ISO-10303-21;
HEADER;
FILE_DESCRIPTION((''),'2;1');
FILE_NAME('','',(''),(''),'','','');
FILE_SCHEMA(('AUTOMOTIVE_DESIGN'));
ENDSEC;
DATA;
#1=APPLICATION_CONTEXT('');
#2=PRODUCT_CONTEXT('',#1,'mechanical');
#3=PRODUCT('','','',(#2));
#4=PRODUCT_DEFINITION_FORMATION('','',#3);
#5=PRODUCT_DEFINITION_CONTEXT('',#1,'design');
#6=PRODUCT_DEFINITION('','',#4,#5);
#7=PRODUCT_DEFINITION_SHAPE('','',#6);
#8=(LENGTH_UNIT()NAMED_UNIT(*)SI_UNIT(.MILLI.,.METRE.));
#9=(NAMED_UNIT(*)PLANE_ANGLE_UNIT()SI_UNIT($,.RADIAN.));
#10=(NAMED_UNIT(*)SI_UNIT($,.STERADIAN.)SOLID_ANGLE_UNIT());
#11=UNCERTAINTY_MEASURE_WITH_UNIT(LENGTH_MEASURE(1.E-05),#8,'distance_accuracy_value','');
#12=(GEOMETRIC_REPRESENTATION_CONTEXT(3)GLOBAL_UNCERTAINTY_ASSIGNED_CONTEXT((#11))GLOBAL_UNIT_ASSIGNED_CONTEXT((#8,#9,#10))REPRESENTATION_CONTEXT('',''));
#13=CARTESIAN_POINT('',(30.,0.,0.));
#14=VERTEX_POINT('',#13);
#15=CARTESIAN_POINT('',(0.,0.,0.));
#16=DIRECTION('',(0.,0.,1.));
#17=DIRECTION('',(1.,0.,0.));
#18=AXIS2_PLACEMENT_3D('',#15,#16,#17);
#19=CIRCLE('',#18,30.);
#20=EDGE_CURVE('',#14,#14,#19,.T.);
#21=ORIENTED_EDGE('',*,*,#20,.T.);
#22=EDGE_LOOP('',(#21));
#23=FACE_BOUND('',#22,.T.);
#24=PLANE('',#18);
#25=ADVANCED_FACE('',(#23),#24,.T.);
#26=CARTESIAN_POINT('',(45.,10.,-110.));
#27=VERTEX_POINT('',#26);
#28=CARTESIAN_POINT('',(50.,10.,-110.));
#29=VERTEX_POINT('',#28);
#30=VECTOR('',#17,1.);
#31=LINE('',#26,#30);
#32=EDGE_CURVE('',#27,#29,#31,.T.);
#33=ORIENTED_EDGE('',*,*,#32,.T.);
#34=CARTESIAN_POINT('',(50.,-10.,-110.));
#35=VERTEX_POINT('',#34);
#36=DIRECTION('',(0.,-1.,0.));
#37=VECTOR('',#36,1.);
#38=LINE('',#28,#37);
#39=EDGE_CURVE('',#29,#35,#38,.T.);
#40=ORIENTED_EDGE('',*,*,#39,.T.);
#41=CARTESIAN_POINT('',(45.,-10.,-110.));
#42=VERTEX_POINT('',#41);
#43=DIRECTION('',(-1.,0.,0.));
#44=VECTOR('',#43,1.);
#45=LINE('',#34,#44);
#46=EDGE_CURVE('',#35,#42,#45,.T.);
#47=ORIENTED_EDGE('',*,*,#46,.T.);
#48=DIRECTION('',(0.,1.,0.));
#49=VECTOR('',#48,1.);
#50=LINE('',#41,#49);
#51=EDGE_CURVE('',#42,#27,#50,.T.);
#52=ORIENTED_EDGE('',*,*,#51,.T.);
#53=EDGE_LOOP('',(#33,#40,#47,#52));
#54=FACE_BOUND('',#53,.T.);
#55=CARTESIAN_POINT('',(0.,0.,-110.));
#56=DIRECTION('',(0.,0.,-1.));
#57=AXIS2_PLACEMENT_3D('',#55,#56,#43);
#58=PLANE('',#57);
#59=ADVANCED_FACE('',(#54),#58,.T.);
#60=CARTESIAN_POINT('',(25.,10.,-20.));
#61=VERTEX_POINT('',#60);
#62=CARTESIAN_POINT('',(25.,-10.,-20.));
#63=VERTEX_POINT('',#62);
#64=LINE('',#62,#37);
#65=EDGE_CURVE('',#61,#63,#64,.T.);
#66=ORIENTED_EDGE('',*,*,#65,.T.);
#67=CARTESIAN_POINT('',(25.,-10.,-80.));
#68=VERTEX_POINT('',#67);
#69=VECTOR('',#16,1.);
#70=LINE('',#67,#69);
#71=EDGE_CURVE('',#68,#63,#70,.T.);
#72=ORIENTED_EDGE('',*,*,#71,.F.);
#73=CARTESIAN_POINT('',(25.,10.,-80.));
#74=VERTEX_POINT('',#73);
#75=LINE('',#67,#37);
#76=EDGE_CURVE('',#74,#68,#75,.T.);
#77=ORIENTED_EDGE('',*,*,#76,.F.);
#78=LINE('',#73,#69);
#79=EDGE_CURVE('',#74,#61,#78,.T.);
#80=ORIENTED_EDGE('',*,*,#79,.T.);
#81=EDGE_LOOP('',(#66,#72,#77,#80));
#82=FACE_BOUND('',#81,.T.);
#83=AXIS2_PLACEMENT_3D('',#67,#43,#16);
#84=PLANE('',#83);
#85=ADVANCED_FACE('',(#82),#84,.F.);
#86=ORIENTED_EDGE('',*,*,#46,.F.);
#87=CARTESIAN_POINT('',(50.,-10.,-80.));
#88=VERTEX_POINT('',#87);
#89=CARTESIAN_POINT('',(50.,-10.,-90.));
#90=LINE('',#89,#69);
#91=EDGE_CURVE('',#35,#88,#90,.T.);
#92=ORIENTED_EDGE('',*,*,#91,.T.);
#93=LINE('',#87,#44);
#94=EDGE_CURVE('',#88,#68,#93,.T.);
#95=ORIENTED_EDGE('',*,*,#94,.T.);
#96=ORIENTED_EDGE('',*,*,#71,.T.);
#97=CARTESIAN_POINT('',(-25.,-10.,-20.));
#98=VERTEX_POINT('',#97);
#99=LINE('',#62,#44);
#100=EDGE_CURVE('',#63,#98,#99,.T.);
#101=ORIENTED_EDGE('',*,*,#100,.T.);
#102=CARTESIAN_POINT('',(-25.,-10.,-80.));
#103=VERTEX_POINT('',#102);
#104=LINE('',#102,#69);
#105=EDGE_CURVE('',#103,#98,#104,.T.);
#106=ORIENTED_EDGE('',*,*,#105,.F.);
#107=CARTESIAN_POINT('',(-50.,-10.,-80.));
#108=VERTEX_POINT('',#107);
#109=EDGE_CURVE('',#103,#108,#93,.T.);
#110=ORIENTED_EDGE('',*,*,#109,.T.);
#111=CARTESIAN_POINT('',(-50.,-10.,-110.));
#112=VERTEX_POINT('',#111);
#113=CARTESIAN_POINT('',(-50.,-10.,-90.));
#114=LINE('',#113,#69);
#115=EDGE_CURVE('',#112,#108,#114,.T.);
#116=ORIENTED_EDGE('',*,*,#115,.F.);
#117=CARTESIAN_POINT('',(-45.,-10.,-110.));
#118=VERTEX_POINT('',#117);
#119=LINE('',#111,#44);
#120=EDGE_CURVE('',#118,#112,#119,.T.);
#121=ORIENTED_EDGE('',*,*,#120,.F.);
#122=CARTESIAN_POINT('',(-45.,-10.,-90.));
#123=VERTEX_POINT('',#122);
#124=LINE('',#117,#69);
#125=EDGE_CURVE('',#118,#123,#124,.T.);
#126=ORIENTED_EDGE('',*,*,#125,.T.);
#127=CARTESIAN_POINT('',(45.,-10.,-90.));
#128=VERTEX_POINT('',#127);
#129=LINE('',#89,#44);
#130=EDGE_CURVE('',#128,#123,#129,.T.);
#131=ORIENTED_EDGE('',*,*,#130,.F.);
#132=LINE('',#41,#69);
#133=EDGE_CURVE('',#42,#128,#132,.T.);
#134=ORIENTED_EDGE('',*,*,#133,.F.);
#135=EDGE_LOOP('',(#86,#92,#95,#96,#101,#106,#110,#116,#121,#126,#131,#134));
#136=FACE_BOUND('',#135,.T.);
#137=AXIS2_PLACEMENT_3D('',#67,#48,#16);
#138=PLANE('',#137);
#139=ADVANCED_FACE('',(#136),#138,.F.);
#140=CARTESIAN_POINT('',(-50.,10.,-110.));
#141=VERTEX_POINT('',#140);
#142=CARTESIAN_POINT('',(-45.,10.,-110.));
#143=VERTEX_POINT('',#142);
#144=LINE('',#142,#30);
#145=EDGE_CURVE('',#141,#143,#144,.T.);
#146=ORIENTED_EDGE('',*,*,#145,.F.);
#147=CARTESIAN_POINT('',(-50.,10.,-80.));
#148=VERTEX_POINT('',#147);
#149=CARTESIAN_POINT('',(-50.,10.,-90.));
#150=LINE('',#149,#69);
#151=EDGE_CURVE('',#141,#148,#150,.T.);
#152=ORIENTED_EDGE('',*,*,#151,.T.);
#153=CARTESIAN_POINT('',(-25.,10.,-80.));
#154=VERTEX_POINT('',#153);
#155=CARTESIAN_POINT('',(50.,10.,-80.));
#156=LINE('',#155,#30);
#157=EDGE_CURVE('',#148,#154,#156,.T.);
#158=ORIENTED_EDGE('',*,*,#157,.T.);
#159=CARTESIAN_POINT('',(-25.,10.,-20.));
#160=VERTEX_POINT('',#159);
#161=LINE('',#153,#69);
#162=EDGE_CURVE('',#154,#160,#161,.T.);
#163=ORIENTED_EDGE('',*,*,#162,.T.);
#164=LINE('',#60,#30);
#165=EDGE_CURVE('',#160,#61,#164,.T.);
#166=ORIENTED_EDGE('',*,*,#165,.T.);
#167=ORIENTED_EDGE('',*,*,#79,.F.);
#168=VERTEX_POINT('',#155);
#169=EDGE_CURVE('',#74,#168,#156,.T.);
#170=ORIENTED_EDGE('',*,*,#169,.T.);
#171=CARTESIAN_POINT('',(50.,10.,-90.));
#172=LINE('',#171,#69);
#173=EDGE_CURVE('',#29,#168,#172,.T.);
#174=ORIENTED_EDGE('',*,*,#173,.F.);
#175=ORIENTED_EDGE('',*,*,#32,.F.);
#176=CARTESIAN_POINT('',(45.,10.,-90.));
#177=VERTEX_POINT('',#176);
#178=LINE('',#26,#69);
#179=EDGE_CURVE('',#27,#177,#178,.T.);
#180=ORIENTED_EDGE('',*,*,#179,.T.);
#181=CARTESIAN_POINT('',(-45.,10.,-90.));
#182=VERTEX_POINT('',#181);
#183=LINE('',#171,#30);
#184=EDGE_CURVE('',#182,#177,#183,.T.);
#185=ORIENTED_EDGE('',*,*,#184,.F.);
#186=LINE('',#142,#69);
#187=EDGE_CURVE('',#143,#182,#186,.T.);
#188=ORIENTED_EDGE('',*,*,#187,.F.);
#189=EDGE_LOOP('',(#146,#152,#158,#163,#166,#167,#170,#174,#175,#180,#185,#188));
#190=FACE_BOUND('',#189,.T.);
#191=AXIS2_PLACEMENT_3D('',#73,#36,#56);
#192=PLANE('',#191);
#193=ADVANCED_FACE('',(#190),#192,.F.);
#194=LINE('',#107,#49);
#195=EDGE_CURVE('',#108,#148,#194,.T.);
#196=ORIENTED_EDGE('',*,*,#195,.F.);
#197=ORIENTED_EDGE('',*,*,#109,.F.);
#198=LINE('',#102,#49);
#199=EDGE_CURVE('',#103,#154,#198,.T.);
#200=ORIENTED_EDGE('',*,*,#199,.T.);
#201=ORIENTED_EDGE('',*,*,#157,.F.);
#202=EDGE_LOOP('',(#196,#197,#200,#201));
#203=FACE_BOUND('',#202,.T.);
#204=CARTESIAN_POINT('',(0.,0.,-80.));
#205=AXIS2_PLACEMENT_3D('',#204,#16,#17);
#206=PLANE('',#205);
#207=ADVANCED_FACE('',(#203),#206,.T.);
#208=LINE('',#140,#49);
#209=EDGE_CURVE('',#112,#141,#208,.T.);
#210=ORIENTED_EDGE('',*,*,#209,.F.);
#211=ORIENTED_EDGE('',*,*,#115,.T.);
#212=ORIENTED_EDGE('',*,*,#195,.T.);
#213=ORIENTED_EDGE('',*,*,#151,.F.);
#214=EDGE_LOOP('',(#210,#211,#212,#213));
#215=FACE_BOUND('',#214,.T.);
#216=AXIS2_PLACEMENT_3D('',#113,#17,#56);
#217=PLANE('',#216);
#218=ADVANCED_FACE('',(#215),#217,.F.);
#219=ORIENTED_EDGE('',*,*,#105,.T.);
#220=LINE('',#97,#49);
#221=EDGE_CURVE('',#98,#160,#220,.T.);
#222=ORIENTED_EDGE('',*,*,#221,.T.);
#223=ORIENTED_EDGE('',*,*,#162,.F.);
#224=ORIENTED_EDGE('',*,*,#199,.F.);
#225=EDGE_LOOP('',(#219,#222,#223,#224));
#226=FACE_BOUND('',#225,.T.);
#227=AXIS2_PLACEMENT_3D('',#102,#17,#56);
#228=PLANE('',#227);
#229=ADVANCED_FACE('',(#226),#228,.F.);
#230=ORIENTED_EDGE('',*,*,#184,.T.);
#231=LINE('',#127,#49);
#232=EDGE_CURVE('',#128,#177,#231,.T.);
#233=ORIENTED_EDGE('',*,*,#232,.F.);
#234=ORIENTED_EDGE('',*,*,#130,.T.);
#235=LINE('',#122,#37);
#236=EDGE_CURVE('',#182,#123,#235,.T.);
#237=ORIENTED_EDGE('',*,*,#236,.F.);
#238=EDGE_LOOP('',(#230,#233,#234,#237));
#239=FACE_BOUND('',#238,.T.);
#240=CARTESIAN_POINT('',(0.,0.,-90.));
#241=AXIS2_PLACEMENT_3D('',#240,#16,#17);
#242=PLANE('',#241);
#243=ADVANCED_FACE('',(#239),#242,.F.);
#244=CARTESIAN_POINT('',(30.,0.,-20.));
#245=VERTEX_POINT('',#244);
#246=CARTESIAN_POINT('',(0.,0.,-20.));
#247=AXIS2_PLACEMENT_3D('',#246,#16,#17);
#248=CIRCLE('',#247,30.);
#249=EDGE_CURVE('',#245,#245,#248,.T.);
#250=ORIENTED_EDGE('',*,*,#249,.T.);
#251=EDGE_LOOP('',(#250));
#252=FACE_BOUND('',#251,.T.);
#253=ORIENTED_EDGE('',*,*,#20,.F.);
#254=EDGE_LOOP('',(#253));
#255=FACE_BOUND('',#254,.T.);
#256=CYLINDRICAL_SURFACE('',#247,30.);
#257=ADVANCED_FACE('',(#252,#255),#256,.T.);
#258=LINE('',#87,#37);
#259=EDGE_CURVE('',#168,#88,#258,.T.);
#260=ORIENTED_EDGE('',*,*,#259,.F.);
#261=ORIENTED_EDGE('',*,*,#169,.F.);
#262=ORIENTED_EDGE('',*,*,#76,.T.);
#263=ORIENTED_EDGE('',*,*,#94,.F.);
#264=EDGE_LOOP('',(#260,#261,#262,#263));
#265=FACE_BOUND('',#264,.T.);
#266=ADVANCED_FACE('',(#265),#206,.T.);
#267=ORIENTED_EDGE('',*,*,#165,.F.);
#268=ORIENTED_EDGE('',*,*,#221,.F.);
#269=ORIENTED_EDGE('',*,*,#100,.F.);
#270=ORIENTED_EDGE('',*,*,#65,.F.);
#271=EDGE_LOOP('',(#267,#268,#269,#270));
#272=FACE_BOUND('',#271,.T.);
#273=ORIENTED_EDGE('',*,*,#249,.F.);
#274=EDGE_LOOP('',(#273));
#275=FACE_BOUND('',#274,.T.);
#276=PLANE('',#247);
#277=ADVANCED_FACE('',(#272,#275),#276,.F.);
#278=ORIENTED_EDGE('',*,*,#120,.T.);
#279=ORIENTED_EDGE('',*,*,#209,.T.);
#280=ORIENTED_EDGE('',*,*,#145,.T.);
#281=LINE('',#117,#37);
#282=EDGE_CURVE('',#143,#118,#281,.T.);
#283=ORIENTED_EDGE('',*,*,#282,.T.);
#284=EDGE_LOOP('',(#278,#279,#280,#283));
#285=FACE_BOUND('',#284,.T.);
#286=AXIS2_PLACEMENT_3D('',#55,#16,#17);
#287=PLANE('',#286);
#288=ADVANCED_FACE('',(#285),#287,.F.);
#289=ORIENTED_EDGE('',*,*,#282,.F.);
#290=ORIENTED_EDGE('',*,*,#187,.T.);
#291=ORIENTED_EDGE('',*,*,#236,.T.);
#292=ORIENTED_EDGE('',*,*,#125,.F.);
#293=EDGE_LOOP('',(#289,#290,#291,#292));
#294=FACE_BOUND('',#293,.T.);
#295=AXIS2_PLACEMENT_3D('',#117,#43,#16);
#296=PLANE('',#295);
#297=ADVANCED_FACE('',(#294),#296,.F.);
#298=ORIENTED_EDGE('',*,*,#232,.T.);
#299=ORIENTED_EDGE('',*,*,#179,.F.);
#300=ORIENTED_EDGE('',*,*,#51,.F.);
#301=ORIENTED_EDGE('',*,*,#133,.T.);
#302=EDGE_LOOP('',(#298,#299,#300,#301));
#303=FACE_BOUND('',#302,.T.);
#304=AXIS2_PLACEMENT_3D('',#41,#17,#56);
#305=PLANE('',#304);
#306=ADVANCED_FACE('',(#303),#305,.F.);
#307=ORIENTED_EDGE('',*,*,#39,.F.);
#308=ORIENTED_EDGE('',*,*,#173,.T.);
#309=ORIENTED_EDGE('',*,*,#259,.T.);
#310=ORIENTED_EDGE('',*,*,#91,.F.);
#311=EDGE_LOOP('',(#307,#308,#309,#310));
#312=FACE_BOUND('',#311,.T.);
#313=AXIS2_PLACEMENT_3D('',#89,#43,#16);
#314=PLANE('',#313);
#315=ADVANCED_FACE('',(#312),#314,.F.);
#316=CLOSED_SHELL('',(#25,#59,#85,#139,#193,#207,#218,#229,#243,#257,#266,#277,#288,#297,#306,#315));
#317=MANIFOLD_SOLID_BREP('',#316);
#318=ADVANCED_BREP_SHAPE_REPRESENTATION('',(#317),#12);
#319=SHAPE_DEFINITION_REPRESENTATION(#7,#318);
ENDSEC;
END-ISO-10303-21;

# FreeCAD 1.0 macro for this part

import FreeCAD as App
import Part
import Sketcher
from FreeCAD import Vector
Q = App.Units.Quantity


def add_polygon(sketch, points):
    """Adds a closed chain of lines whose ends are joined by coincident constraints."""
    first, n = sketch.GeometryCount, len(points)
    for a, b in zip(points, points[1:] + points[:1]):
        sketch.addGeometry(Part.LineSegment(App.Vector(*a, 0), App.Vector(*b, 0)), False)
    for i in range(n):
        sketch.addConstraint(Sketcher.Constraint("Coincident", first + i, 2, first + (i + 1) % n, 1))

doc = App.newDocument("Part")
body = doc.addObject("PartDesign::Body", "Body")

sketch1 = body.newObject("Sketcher::SketchObject", "Sketch")
sketch1.AttachmentSupport = (doc.getObject("XY_Plane"), [""])
sketch1.MapMode = "FlatFace"
sketch1.addGeometry(Part.Circle(Vector(0, 0, 0), Vector(0, 0, 1), 30), False)
sketch1.addConstraint([
    Sketcher.Constraint("Coincident", 0, 3, -1, 1),
    Sketcher.Constraint("Diameter", 0, Q("60 mm")),
])
pad1 = body.newObject("PartDesign::Pad", "Pad")
pad1.Profile = sketch1
pad1.Length = 20
pad1.Reversed = True

sketch2 = body.newObject("Sketcher::SketchObject", "Sketch001")
sketch2.AttachmentSupport = (doc.getObject("XY_Plane"), [""])
sketch2.MapMode = "FlatFace"
sketch2.AttachmentOffset = App.Placement(Vector(0, 0, -20), App.Rotation())
add_polygon(sketch2, [(25, 10), (25, -10), (-25, -10), (-25, 10)])
sketch2.addConstraint([
    Sketcher.Constraint("Vertical", 0),
    Sketcher.Constraint("Horizontal", 1),
    Sketcher.Constraint("Vertical", 2),
    Sketcher.Constraint("Horizontal", 3),
    Sketcher.Constraint("Symmetric", 0, 2, 2, 2, -1, 1),
    Sketcher.Constraint("DistanceX", 1, 2, 1, 1, Q("50 mm")),
    Sketcher.Constraint("DistanceY", 0, 2, 0, 1, Q("20 mm")),
])
pad2 = body.newObject("PartDesign::Pad", "Pad001")
pad2.Profile = sketch2
pad2.Length = 60
pad2.Reversed = True

sketch3 = body.newObject("Sketcher::SketchObject", "Sketch002")
sketch3.AttachmentSupport = (doc.getObject("XY_Plane"), [""])
sketch3.MapMode = "FlatFace"
sketch3.AttachmentOffset = App.Placement(Vector(0, 0, -80), App.Rotation())
add_polygon(sketch3, [(50, 10), (50, -10), (-50, -10), (-50, 10)])
sketch3.addConstraint([
    Sketcher.Constraint("Vertical", 0),
    Sketcher.Constraint("Horizontal", 1),
    Sketcher.Constraint("Vertical", 2),
    Sketcher.Constraint("Horizontal", 3),
    Sketcher.Constraint("Symmetric", 0, 2, 2, 2, -1, 1),
    Sketcher.Constraint("DistanceX", 1, 2, 1, 1, Q("100 mm")),
    Sketcher.Constraint("DistanceY", 0, 2, 0, 1, Q("20 mm")),
])
pad3 = body.newObject("PartDesign::Pad", "Pad002")
pad3.Profile = sketch3
pad3.Length = 10
pad3.Reversed = True

sketch4 = body.newObject("Sketcher::SketchObject", "Sketch003")
sketch4.AttachmentSupport = (doc.getObject("XY_Plane"), [""])
sketch4.MapMode = "FlatFace"
sketch4.AttachmentOffset = App.Placement(Vector(0, 0, -90), App.Rotation())
add_polygon(sketch4, [(50, 10), (50, -10), (45, -10), (45, 10)])
add_polygon(sketch4, [(-45, 10), (-45, -10), (-50, -10), (-50, 10)])
sketch4.addConstraint([
    Sketcher.Constraint("Vertical", 0),
    Sketcher.Constraint("Horizontal", 1),
    Sketcher.Constraint("Vertical", 2),
    Sketcher.Constraint("Horizontal", 3),
    Sketcher.Constraint("Vertical", 4),
    Sketcher.Constraint("Horizontal", 5),
    Sketcher.Constraint("Vertical", 6),
    Sketcher.Constraint("Horizontal", 7),
    Sketcher.Constraint("Symmetric", 2, 2, 4, 2, -1, 1),
    Sketcher.Constraint("Symmetric", 0, 2, 6, 2, -1, 1),
    Sketcher.Constraint("Horizontal", 1, 2, 4, 2),
    Sketcher.Constraint("DistanceX", 1, 2, 1, 1, Q("5 mm")),
    Sketcher.Constraint("DistanceY", 0, 2, 0, 1, Q("20 mm")),
    Sketcher.Constraint("DistanceX", -1, 1, 0, 2, Q("50 mm")),
])
pad4 = body.newObject("PartDesign::Pad", "Pad003")
pad4.Profile = sketch4
pad4.Length = 20
pad4.Reversed = True

doc.recompute()
